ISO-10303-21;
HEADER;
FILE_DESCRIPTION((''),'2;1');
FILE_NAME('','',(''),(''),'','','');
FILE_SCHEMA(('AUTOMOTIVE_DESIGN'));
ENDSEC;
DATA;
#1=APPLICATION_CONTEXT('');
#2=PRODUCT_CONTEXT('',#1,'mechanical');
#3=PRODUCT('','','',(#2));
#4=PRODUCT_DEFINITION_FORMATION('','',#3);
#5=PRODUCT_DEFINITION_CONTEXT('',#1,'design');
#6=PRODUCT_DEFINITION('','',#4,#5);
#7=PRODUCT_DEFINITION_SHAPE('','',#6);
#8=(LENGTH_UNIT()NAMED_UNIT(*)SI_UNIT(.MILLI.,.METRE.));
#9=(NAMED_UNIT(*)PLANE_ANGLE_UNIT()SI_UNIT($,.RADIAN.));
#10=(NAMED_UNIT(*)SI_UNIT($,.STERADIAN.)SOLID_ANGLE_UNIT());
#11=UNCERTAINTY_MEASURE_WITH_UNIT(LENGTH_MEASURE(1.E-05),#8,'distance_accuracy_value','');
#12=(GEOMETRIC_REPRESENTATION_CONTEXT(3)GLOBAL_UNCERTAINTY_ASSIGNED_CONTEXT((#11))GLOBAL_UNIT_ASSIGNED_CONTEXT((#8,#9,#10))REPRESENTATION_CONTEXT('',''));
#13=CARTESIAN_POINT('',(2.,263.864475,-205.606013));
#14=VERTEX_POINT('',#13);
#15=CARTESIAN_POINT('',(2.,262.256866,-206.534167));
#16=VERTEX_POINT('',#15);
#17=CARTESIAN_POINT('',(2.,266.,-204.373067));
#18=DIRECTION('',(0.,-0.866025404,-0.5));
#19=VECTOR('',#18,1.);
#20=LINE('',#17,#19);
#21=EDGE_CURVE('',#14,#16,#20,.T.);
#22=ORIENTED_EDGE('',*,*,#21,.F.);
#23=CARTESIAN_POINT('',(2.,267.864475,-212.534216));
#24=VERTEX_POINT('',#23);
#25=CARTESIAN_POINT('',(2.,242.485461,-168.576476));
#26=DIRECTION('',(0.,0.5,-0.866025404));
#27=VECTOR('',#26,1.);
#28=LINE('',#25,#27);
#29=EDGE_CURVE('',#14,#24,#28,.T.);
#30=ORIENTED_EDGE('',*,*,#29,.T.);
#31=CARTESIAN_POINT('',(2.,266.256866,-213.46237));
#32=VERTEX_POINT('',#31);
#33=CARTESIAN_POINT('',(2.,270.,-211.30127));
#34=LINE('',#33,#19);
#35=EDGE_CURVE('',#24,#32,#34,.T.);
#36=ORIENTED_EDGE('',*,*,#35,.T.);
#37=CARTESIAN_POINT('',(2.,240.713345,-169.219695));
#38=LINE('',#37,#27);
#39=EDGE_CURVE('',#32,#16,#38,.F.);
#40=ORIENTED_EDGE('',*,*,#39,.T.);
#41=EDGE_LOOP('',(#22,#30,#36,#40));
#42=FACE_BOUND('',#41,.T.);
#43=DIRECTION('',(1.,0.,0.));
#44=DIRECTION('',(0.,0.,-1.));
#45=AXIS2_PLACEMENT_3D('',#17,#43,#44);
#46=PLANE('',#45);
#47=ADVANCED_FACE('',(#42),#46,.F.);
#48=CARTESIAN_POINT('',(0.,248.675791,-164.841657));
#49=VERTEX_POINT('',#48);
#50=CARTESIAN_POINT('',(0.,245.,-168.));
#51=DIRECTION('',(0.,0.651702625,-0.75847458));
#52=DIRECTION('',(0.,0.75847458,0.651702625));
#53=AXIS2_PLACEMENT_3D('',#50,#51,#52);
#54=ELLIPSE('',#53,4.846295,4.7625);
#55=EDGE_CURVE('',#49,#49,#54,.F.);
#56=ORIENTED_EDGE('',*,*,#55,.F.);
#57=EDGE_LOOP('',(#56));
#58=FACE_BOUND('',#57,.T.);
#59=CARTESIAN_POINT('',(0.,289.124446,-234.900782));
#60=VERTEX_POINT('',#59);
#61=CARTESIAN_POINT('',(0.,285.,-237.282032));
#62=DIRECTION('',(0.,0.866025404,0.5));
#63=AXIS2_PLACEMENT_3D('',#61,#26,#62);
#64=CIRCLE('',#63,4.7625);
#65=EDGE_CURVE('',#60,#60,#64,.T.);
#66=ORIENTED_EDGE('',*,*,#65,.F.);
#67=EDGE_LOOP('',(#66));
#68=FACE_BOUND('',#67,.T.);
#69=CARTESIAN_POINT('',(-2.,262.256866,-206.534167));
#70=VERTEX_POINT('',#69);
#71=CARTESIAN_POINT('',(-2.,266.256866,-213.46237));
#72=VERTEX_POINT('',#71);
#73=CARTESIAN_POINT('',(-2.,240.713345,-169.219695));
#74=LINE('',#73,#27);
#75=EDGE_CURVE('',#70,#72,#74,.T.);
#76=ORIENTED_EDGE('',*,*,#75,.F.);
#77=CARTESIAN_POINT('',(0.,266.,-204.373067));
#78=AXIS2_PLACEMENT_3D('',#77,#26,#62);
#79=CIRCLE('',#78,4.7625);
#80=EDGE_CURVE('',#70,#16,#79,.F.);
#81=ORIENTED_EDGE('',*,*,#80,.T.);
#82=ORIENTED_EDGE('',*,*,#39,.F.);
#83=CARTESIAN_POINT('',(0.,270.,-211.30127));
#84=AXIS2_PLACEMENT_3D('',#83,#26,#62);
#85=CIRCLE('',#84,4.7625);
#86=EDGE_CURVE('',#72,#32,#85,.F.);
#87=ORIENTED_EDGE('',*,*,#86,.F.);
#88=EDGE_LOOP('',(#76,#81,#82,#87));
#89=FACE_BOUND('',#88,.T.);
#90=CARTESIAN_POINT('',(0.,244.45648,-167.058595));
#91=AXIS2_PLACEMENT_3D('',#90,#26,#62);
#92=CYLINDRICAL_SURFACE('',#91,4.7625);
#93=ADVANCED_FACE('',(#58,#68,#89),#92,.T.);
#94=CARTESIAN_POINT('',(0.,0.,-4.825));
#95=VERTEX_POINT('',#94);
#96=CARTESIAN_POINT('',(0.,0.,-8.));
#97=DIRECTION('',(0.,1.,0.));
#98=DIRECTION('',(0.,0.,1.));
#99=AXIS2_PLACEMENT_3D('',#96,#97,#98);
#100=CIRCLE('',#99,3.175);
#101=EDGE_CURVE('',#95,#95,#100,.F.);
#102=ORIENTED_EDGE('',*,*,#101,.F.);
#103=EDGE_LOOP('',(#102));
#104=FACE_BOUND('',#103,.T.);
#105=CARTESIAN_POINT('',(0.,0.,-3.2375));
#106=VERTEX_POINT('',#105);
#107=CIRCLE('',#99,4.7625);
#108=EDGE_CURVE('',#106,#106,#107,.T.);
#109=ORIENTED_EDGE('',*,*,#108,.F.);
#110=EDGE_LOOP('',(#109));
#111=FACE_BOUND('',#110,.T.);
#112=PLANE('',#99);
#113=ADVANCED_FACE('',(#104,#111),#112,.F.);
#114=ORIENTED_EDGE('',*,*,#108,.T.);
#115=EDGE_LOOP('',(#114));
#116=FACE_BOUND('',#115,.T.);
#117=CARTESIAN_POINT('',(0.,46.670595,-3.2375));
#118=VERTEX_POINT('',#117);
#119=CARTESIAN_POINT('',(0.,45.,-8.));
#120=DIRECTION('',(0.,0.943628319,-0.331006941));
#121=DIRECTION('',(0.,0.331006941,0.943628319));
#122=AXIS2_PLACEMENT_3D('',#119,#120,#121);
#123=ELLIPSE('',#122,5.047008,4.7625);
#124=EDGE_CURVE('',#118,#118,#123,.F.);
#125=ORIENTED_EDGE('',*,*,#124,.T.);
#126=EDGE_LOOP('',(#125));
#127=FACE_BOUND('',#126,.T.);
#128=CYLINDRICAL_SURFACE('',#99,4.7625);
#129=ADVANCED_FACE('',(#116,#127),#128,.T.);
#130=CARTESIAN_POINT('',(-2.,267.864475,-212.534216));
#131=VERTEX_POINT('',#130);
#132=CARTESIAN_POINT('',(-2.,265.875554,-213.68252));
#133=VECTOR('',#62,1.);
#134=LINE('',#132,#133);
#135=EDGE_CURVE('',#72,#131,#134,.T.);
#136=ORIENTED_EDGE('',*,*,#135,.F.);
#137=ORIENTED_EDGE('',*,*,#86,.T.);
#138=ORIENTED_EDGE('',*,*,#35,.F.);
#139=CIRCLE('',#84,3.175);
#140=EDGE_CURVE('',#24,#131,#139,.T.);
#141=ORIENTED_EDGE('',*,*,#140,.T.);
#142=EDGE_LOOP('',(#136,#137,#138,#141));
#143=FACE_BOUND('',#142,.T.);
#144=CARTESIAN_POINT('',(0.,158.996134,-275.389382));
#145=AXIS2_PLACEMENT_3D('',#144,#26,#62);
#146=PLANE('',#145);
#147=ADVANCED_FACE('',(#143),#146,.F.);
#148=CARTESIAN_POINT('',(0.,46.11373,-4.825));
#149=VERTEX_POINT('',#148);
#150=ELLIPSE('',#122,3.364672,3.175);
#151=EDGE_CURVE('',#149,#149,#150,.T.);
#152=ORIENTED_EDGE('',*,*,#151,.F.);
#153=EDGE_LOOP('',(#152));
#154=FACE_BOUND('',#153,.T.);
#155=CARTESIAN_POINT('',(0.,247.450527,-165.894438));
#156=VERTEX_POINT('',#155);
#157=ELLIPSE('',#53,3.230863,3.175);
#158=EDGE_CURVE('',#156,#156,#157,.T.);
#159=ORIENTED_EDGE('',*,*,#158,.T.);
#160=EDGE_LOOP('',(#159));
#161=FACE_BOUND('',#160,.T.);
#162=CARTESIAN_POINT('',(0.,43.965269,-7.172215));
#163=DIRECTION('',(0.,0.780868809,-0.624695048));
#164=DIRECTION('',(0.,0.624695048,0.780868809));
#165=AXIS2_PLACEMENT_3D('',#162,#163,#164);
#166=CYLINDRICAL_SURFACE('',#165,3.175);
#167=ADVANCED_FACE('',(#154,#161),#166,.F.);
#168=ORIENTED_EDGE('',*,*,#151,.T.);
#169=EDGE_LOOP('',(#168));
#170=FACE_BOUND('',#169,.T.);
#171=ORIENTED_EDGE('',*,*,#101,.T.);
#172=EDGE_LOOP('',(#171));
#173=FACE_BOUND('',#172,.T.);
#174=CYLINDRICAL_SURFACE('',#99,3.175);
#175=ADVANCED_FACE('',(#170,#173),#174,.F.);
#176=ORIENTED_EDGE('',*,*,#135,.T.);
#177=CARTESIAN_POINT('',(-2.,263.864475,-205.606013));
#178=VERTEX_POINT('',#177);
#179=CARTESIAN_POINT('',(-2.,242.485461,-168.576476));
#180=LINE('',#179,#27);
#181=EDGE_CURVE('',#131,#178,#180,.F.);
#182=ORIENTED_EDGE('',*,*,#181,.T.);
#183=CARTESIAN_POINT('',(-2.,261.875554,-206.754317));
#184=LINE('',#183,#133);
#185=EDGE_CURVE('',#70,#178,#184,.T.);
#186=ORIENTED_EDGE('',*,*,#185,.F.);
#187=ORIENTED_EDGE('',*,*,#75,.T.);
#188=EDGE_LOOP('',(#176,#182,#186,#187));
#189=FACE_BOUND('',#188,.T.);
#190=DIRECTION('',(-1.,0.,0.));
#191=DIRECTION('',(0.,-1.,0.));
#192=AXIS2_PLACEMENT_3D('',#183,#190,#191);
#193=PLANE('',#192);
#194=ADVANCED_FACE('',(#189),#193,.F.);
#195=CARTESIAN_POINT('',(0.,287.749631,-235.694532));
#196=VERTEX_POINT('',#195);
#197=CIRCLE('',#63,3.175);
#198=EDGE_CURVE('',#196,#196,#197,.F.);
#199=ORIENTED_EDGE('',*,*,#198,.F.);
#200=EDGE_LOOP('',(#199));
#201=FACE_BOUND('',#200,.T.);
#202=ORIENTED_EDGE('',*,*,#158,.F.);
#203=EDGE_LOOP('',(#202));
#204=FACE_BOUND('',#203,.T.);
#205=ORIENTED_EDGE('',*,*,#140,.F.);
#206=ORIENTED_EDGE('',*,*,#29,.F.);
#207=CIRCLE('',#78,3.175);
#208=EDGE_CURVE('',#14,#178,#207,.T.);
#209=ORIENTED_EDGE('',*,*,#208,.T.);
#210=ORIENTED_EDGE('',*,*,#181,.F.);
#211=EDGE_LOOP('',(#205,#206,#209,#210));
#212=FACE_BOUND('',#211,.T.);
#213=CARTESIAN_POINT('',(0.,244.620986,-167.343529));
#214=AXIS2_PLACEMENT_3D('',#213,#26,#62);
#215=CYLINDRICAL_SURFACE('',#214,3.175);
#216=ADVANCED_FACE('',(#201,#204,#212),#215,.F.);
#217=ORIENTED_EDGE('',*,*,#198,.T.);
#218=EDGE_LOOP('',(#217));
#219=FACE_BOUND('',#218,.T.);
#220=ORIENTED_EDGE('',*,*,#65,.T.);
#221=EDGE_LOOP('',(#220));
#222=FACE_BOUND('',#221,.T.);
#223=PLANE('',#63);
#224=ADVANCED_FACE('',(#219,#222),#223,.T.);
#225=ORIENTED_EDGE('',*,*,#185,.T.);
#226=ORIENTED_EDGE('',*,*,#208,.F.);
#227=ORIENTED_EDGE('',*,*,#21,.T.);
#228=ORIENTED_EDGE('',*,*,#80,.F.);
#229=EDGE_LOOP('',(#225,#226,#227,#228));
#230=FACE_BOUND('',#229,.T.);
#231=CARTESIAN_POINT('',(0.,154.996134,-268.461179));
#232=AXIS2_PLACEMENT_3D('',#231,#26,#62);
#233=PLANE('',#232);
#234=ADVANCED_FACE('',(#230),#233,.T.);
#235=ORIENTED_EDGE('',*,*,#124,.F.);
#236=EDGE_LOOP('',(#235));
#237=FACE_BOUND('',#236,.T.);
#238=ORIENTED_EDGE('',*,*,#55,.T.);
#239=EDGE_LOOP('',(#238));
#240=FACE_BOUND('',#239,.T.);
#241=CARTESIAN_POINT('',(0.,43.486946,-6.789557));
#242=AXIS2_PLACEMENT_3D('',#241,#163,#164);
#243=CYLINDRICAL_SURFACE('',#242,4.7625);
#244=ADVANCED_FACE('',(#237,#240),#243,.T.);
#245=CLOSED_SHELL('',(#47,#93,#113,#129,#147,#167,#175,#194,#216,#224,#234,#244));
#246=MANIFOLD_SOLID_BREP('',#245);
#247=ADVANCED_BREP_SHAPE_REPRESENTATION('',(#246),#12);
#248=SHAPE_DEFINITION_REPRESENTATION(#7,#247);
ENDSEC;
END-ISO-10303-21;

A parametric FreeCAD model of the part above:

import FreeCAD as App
import Part
import Sketcher

V = App.Vector
Q = App.Units.Quantity

doc = App.newDocument("Part")
body = doc.addObject("PartDesign::Body", "Body")

# Sketch on XZ plane
sketch1 = body.newObject("Sketcher::SketchObject", "Sketch")
sketch1.AttachmentSupport = (doc.getObject("XZ_Plane"), [""])
sketch1.MapMode = "FlatFace"
sketch1.addGeometry(Part.Circle(V(0, -8, 0), V(0, 0, 1), 4.8), False)
sketch1.addGeometry(Part.Circle(V(0, -8, 0), V(0, 0, 1), 3.2), False)
sketch1.addConstraint(Sketcher.Constraint("Coincident", 1, 3, 0, 3))
sketch1.addConstraint(Sketcher.Constraint("PointOnObject", 0, 3, -2))
sketch1.addConstraint(Sketcher.Constraint("Diameter", 1, 6.35))
sketch1.addConstraint(Sketcher.Constraint("Diameter", 0, 9.525))
sketch1.addConstraint(Sketcher.Constraint("DistanceY", 0, 3, -1, 1, 8.0))

# Sketch on YZ plane
sketch2 = body.newObject("Sketcher::SketchObject", "Sketch001")
sketch2.AttachmentSupport = (doc.getObject("YZ_Plane"), [""])
sketch2.MapMode = "FlatFace"
sketch2.addGeometry(Part.LineSegment(V(0, -8, 0), V(45, -8, 0)), False)
sketch2.addGeometry(Part.LineSegment(V(45, -8, 0), V(245, -168, 0)), False)
sketch2.addGeometry(Part.LineSegment(V(245, -168, 0), V(285, -237, 0)), False)
sketch2.addConstraint(Sketcher.Constraint("Coincident", 0, 2, 1, 1))
sketch2.addConstraint(Sketcher.Constraint("Coincident", 1, 2, 2, 1))
sketch2.addConstraint(Sketcher.Constraint("Horizontal", 0))
sketch2.addConstraint(Sketcher.Constraint("PointOnObject", 0, 1, -2))
sketch2.addConstraint(Sketcher.Constraint("DistanceX", 0, 1, 0, 2, 45.0))
sketch2.addConstraint(Sketcher.Constraint("Angle", 2, Q("-60 deg")))
sketch2.addConstraint(Sketcher.Constraint("Distance", 2, 80.0))
sketch2.addConstraint(Sketcher.Constraint("DistanceY", 0, 1, -1, 1, 8.0))
sketch2.addConstraint(Sketcher.Constraint("DistanceX", -1, 1, 1, 2, 245.0))
sketch2.addConstraint(Sketcher.Constraint("DistanceY", 1, 2, -1, 1, 168.0))
doc.recompute()

additivepipe = body.newObject("PartDesign::AdditivePipe", "AdditivePipe")
additivepipe.Profile = sketch1
additivepipe.Spine = (sketch2, ["Edge1", "Edge2", "Edge3"])
additivepipe.Transition = "Right corner"

# Sketch on an angled plane
sketch3 = body.newObject("Sketcher::SketchObject", "Sketch002")
sketch3.Placement = App.Placement(V(0, 158.996134, -275.389382), App.Rotation(V(1, 0, 0), V(0, -0.866025404, -0.5), V(0, 0.5, -0.866025404), "ZXY"))
sketch3.addGeometry(Part.LineSegment(V(-2, -123.4, 0), V(-2, -128.2, 0)), False)
sketch3.addGeometry(Part.LineSegment(V(-2, -128.2, 0), V(2, -128.2, 0)), False)
sketch3.addGeometry(Part.LineSegment(V(2, -128.2, 0), V(2, -123.4, 0)), False)
sketch3.addGeometry(Part.LineSegment(V(2, -123.4, 0), V(-2, -123.4, 0)), False)
sketch3.addConstraint(Sketcher.Constraint("Coincident", 0, 2, 1, 1))
sketch3.addConstraint(Sketcher.Constraint("Coincident", 1, 2, 2, 1))
sketch3.addConstraint(Sketcher.Constraint("Coincident", 2, 2, 3, 1))
sketch3.addConstraint(Sketcher.Constraint("Coincident", 3, 2, 0, 1))
sketch3.addConstraint(Sketcher.Constraint("Vertical", 0))
sketch3.addConstraint(Sketcher.Constraint("Horizontal", 1))
sketch3.addConstraint(Sketcher.Constraint("Vertical", 2))
sketch3.addConstraint(Sketcher.Constraint("Horizontal", 3))
sketch3.addConstraint(Sketcher.Constraint("DistanceX", 1, 1, 1, 2, 4.0))
sketch3.addConstraint(Sketcher.Constraint("DistanceX", 0, 2, -1, 1, 2.0))
sketch3.addConstraint(Sketcher.Constraint("DistanceY", 0, 2, 0, 1, 4.7625))
sketch3.addConstraint(Sketcher.Constraint("DistanceY", 0, 2, -1, 1, 128.176224))
pocket1 = body.newObject("PartDesign::Pocket", "Pocket")
pocket1.Profile = sketch3
pocket1.Length = 8

doc.recompute()
